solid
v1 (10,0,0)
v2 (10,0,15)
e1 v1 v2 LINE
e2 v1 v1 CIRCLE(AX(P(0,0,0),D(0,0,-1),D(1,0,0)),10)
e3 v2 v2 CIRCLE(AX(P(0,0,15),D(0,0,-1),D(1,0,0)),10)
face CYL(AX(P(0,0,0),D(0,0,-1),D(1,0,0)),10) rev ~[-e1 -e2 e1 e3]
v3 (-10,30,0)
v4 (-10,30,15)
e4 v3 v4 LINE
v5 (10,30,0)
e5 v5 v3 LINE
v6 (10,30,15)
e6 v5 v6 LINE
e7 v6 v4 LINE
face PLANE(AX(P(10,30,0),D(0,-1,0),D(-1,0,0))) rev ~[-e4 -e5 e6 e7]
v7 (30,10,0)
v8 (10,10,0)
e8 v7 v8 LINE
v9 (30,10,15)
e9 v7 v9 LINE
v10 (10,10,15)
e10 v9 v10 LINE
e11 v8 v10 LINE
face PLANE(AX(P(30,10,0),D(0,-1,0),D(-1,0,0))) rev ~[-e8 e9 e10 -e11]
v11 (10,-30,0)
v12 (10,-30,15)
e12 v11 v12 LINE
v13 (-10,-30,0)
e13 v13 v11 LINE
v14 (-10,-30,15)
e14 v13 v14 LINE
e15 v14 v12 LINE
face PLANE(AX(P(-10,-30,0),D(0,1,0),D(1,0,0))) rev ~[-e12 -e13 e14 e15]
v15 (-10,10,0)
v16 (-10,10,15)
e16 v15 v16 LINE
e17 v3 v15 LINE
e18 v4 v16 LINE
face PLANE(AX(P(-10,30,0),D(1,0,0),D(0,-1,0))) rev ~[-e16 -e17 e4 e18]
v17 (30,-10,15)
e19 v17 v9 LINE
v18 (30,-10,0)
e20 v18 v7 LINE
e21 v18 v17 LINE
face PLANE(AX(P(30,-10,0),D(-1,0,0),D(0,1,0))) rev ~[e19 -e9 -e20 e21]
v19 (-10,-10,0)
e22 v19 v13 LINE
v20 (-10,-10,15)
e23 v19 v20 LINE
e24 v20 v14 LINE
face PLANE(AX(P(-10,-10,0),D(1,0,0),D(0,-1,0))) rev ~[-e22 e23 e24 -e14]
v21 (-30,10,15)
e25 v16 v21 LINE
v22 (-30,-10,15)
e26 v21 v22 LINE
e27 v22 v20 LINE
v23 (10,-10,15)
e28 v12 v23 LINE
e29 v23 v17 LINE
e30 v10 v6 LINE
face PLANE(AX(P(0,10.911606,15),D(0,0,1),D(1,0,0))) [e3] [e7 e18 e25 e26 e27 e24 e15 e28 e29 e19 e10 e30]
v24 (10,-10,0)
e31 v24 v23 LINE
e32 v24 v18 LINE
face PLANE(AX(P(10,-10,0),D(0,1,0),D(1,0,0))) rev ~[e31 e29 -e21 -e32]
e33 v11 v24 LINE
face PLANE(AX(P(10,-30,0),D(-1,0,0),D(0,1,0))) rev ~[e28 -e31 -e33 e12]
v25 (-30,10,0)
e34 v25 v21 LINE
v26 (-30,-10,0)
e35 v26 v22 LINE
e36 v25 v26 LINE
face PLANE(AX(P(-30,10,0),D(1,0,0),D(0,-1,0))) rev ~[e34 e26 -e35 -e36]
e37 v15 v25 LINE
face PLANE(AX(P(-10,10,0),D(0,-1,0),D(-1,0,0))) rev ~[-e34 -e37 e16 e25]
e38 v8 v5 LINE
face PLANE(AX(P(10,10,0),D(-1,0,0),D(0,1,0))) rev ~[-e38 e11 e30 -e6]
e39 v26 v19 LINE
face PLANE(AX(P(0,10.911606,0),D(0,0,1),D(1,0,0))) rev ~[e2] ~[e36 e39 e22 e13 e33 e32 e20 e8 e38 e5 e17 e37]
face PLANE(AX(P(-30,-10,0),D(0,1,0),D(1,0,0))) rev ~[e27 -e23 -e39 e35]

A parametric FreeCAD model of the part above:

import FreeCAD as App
import Part
import Sketcher

V = App.Vector

doc = App.newDocument("Part")
body = doc.addObject("PartDesign::Body", "Body")

# Sketch on XY plane
sketch1 = body.newObject("Sketcher::SketchObject", "Sketch")
sketch1.AttachmentSupport = (doc.getObject("XY_Plane"), [""])
sketch1.MapMode = "FlatFace"
sketch1.addGeometry([
    Part.LineSegment(V(30, 10, 0), V(10, 10, 0)),  # 0
    Part.LineSegment(V(10, 10, 0), V(10, 30, 0)),  # 1
    Part.LineSegment(V(10, 30, 0), V(-10, 30, 0)),  # 2
    Part.LineSegment(V(-10, 30, 0), V(-10, 10, 0)),  # 3
    Part.LineSegment(V(-10, 10, 0), V(-30, 10, 0)),  # 4
    Part.LineSegment(V(-30, 10, 0), V(-30, -10, 0)),  # 5
    Part.LineSegment(V(-30, -10, 0), V(-10, -10, 0)),  # 6
    Part.LineSegment(V(-10, -10, 0), V(-10, -30, 0)),  # 7
    Part.LineSegment(V(-10, -30, 0), V(10, -30, 0)),  # 8
    Part.LineSegment(V(10, -30, 0), V(10, -10, 0)),  # 9
    Part.LineSegment(V(10, -10, 0), V(30, -10, 0)),  # 10
    Part.LineSegment(V(30, -10, 0), V(30, 10, 0)),  # 11
    Part.Circle(V(0, 0, 0), V(0, 0, 1), 10),  # 12
], False)
sketch1.addConstraint([
    Sketcher.Constraint("Coincident", 0, 2, 1, 1),
    Sketcher.Constraint("Coincident", 1, 2, 2, 1),
    Sketcher.Constraint("Coincident", 2, 2, 3, 1),
    Sketcher.Constraint("Coincident", 3, 2, 4, 1),
    Sketcher.Constraint("Coincident", 4, 2, 5, 1),
    Sketcher.Constraint("Coincident", 5, 2, 6, 1),
    Sketcher.Constraint("Coincident", 6, 2, 7, 1),
    Sketcher.Constraint("Coincident", 7, 2, 8, 1),
    Sketcher.Constraint("Coincident", 8, 2, 9, 1),
    Sketcher.Constraint("Coincident", 9, 2, 10, 1),
    Sketcher.Constraint("Coincident", 10, 2, 11, 1),
    Sketcher.Constraint("Coincident", 11, 2, 0, 1),
    Sketcher.Constraint("Horizontal", 0),
    Sketcher.Constraint("Vertical", 1),
    Sketcher.Constraint("Horizontal", 2),
    Sketcher.Constraint("Vertical", 3),
    Sketcher.Constraint("Horizontal", 4),
    Sketcher.Constraint("Vertical", 5),
    Sketcher.Constraint("Horizontal", 6),
    Sketcher.Constraint("Vertical", 7),
    Sketcher.Constraint("Horizontal", 8),
    Sketcher.Constraint("Vertical", 9),
    Sketcher.Constraint("Horizontal", 10),
    Sketcher.Constraint("Vertical", 11),
    Sketcher.Constraint("Coincident", 12, 3, -1, 1),
    Sketcher.Constraint("Symmetric", 0, 2, 6, 2, -1, 1),
    Sketcher.Constraint("Symmetric", 2, 2, 8, 2, -1, 1),
    Sketcher.Constraint("Symmetric", 4, 2, 10, 2, -1, 1),
    Sketcher.Constraint("Symmetric", 0, 2, 3, 2, -2),
    Sketcher.Constraint("Equal", 0, 2),
    Sketcher.Constraint("Equal", 10, 1),
    Sketcher.Constraint("Equal", 3, 5),
    Sketcher.Constraint("Diameter", 12, 20.0),
    Sketcher.Constraint("DistanceX", 0, 2, 0, 1, 20.0),
])
pad1 = body.newObject("PartDesign::Pad", "Pad")
pad1.Profile = sketch1
pad1.Length = 15

doc.recompute()
